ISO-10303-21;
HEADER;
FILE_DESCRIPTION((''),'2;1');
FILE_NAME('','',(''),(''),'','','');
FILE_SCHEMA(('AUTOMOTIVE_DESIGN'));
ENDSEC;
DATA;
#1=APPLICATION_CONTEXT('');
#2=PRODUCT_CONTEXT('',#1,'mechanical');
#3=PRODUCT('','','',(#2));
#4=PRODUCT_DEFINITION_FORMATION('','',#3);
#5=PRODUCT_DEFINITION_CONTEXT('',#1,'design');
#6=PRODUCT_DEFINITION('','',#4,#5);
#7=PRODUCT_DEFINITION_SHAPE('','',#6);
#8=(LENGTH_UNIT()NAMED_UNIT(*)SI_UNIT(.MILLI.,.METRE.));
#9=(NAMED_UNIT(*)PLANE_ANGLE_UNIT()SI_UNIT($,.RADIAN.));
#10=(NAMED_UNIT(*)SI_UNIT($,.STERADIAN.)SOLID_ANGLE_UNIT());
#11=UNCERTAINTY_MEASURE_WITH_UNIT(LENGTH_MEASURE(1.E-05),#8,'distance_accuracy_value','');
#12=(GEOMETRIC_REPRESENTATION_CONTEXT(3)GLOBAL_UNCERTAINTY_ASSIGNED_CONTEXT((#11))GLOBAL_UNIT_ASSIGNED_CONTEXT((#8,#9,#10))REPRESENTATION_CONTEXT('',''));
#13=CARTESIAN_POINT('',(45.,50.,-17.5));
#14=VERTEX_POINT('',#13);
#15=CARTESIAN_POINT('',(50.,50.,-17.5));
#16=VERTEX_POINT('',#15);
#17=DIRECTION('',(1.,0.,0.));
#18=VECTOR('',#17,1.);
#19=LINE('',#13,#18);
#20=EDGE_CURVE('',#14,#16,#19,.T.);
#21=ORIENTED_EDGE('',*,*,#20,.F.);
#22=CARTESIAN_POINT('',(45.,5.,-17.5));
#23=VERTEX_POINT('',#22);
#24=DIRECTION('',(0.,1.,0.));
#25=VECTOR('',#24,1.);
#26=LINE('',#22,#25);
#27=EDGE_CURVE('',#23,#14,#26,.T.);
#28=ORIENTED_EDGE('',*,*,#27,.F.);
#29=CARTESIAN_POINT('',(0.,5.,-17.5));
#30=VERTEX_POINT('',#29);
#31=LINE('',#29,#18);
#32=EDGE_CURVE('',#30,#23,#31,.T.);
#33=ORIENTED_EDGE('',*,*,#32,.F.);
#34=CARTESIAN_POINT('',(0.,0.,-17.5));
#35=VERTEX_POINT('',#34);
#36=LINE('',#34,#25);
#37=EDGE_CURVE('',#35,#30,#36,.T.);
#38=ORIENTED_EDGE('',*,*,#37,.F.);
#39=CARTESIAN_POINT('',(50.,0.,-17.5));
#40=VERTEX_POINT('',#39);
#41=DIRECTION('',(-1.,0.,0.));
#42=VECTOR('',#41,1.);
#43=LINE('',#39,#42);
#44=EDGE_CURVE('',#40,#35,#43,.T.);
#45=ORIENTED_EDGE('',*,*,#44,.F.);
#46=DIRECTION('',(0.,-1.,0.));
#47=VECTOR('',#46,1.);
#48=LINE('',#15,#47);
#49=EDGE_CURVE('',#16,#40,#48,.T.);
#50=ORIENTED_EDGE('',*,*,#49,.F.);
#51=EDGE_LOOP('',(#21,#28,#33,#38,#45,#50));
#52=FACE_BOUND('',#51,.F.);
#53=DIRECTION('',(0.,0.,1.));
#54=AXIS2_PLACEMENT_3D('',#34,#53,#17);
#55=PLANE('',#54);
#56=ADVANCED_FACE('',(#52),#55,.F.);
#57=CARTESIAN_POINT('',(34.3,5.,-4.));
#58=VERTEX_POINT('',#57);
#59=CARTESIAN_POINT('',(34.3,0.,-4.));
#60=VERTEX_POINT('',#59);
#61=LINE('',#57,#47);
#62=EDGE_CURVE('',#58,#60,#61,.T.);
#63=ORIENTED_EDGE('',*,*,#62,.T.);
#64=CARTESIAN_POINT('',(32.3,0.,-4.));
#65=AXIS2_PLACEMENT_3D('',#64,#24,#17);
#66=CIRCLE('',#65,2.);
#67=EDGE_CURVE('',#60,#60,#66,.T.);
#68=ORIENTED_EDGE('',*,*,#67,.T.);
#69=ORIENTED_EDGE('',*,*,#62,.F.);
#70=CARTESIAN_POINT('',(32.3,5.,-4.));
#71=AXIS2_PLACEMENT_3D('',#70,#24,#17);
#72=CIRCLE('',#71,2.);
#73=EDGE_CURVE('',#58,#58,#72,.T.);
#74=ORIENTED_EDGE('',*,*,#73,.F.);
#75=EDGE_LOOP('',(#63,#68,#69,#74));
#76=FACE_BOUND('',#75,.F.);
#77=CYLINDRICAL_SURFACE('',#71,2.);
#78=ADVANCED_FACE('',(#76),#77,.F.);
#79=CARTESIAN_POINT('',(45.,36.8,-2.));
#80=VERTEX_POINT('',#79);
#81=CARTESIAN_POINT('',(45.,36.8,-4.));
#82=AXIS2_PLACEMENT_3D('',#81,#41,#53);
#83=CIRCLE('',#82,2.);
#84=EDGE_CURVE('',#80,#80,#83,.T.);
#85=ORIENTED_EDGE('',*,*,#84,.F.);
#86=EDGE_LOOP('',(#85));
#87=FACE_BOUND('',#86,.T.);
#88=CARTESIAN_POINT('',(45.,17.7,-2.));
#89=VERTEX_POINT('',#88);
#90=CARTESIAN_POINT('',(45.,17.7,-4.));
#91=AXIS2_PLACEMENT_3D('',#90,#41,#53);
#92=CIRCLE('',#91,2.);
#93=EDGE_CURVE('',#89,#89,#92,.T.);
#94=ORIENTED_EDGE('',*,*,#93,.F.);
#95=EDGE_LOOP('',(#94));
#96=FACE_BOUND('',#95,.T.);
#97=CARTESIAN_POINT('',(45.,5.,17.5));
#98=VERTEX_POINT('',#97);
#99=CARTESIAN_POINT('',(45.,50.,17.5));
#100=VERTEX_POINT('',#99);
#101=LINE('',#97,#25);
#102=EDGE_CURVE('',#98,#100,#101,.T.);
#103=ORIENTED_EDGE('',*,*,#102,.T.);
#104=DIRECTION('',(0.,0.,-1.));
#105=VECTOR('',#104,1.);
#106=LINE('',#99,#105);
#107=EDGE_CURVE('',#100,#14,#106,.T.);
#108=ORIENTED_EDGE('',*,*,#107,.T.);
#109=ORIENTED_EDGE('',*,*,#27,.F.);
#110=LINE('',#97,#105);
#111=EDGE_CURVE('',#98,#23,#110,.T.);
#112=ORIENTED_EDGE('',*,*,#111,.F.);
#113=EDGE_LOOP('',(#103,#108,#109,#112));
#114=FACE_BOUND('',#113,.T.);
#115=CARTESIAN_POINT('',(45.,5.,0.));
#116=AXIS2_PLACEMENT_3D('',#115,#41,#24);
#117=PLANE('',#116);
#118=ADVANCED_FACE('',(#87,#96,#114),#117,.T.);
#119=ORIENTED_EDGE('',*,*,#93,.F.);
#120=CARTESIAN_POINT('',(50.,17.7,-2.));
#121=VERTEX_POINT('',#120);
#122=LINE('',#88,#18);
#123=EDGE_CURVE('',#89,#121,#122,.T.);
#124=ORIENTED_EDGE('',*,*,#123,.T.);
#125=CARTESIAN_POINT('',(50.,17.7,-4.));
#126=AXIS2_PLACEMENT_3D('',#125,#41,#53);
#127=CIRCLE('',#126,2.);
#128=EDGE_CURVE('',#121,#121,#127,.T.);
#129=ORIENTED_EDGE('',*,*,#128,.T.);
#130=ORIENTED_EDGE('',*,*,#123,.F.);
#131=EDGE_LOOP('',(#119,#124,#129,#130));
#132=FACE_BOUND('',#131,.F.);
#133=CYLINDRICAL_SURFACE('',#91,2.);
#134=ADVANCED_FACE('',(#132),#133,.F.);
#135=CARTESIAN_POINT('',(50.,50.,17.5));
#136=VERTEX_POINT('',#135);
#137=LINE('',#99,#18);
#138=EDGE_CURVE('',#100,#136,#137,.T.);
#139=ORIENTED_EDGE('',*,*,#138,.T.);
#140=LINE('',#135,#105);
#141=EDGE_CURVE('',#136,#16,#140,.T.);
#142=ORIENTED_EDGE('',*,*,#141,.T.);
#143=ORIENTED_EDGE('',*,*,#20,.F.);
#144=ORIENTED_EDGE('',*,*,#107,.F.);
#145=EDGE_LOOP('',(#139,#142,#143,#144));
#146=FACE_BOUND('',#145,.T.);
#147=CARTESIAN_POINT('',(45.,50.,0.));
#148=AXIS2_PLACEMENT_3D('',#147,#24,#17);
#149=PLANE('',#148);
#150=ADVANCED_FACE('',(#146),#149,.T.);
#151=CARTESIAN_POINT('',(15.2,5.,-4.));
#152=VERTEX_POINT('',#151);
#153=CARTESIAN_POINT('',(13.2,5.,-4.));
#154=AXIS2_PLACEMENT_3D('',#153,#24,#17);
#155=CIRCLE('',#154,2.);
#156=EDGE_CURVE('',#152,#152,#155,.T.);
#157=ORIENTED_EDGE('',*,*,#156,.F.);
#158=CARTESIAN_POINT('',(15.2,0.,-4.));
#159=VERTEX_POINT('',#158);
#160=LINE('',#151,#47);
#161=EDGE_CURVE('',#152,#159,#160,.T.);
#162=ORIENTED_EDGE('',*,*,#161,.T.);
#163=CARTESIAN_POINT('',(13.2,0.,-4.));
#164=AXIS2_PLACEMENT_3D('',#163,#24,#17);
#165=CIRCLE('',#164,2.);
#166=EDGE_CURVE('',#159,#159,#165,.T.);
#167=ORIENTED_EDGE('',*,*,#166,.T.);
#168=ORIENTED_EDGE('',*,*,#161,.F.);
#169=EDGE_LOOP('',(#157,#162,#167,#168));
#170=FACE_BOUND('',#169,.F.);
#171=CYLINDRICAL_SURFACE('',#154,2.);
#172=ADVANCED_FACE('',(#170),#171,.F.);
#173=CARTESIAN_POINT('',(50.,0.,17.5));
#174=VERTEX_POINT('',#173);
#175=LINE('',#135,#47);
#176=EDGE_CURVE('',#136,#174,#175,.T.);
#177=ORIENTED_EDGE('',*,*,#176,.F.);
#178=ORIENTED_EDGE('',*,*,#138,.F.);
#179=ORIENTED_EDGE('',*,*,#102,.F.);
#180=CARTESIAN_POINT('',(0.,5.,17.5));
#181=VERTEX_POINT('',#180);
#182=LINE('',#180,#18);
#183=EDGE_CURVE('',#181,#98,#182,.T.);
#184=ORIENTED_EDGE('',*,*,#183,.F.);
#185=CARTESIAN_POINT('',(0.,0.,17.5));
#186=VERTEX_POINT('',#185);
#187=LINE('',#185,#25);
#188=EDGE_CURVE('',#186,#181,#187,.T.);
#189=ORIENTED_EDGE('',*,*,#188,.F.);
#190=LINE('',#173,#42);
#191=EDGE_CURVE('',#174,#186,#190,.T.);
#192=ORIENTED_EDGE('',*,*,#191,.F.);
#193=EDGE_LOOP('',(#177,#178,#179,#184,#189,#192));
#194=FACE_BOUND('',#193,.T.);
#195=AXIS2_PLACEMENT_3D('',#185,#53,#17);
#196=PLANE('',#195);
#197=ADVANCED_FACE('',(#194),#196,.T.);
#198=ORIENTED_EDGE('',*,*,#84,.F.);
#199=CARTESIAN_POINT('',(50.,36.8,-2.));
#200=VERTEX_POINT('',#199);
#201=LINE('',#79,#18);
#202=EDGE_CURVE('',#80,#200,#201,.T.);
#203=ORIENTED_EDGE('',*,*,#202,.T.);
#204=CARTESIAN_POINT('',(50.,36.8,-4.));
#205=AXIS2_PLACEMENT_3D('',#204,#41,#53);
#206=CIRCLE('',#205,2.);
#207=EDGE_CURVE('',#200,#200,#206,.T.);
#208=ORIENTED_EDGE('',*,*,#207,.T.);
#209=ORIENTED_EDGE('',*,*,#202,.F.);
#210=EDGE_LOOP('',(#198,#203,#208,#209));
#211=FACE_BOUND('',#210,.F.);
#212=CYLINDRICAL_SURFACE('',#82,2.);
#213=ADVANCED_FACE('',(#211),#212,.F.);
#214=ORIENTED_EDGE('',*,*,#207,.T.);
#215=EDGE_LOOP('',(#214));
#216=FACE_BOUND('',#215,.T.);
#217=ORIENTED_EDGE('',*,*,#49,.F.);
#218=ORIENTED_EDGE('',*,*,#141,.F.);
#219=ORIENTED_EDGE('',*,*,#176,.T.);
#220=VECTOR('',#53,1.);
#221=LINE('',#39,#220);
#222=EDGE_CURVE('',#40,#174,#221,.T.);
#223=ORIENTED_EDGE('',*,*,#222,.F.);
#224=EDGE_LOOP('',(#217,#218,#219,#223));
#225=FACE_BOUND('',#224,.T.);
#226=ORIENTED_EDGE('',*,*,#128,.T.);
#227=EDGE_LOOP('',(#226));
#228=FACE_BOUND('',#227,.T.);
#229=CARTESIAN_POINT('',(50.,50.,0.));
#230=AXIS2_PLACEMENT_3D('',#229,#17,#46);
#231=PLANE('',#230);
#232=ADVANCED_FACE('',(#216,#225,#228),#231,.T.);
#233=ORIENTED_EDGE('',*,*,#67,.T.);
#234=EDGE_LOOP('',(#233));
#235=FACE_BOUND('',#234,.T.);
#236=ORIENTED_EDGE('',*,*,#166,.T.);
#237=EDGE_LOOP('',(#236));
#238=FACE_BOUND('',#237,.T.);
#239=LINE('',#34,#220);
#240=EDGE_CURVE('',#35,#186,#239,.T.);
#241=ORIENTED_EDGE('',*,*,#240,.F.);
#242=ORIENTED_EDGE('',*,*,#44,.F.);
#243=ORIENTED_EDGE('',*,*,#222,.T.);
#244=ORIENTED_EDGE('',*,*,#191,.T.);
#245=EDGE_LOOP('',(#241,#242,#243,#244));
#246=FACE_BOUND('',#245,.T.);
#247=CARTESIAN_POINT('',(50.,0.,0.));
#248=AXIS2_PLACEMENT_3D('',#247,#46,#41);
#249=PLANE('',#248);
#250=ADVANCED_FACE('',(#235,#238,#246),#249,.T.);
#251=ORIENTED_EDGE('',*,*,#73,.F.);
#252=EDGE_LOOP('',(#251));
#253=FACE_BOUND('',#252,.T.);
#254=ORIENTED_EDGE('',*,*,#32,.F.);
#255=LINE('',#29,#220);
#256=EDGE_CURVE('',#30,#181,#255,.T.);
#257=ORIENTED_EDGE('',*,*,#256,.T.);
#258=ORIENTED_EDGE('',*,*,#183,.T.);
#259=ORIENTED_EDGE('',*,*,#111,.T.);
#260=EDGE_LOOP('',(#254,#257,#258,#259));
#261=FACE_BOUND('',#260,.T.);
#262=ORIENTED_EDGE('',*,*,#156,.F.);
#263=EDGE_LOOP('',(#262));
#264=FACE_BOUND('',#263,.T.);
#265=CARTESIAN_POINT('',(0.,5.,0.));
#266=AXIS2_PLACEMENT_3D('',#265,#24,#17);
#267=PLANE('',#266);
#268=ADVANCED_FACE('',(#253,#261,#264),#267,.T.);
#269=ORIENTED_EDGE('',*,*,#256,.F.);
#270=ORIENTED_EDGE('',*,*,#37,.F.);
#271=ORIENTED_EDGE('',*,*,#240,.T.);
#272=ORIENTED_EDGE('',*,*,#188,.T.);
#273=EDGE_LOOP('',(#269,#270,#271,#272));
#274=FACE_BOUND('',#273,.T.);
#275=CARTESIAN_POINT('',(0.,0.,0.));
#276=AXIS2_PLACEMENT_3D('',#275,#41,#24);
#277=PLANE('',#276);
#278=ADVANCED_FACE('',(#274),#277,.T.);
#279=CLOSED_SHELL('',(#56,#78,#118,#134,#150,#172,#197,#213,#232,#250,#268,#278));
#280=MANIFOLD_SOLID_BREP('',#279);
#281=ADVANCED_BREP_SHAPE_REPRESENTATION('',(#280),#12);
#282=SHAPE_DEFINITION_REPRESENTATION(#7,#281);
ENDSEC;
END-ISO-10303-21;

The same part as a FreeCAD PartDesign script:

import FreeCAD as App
import Part
import Sketcher

V = App.Vector
Q = App.Units.Quantity


def add_polygon(sketch, points):
    """Adds a closed chain of lines whose ends are joined by coincident constraints."""
    first, n = sketch.GeometryCount, len(points)
    for a, b in zip(points, points[1:] + points[:1]):
        sketch.addGeometry(Part.LineSegment(App.Vector(*a, 0), App.Vector(*b, 0)), False)
    for i in range(n):
        sketch.addConstraint(Sketcher.Constraint("Coincident", first + i, 2, first + (i + 1) % n, 1))

doc = App.newDocument("Part")
params = doc.addObject("Spreadsheet::Sheet", "Params")
for row, (alias, value) in enumerate([
    ("sketch1_width", "50 mm"),
    ("sketch1_width2", "5 mm"),
    ("pad1_length", "35 mm"),
    ("sketch2_diameter", "4 mm"),
    ("sketch3_diameter", "4 mm"),
], start=1):
    params.set(f"A{row}", alias)
    params.set(f"B{row}", "=" + value)
    params.setAlias(f"B{row}", alias)

body = doc.addObject("PartDesign::Body", "Body")

sketch1 = doc.addObject("Sketcher::SketchObject", "Sketch")
body.addObject(sketch1)
sketch1.AttachmentSupport = (doc.XY_Plane, [""])
sketch1.MapMode = "FlatFace"
add_polygon(sketch1, [(45, 5), (0, 5), (0, 0), (50, 0), (50, 50), (45, 50)])
sketch1.addConstraint([
    Sketcher.Constraint("Horizontal", 0),
    Sketcher.Constraint("Vertical", 1),
    Sketcher.Constraint("Horizontal", 2),
    Sketcher.Constraint("Vertical", 3),
    Sketcher.Constraint("Horizontal", 4),
    Sketcher.Constraint("Vertical", 5),
    Sketcher.Constraint("Coincident", 1, 2, -1, 1),
    Sketcher.Constraint("Equal", 4, 1),
    Sketcher.Constraint("Equal", 2, 3),
    Sketcher.Constraint("DistanceX", 2, 1, 2, 2, Q("50 mm")),
    Sketcher.Constraint("DistanceX", 4, 2, 4, 1, Q("5 mm")),
])
sketch1.setExpression("Constraints[15]", "Params.sketch1_width")
sketch1.setExpression("Constraints[16]", "Params.sketch1_width2")
pad1 = doc.addObject("PartDesign::Pad", "Pad")
body.addObject(pad1)
pad1.Profile = sketch1
pad1.setExpression("Length", "Params.pad1_length")
pad1.Midplane = True

sketch2 = doc.addObject("Sketcher::SketchObject", "Sketch001")
body.addObject(sketch2)
sketch2.AttachmentSupport = (doc.XZ_Plane, [""])
sketch2.MapMode = "FlatFace"
sketch2.AttachmentOffset = App.Placement(V(0, 0, -5), App.Rotation())
sketch2.addGeometry([
    Part.Circle(V(13.2, -4, 0), V(0, 0, 1), 2),
    Part.Circle(V(32.3, -4, 0), V(0, 0, 1), 2),
], False)
sketch2.addConstraint([
    Sketcher.Constraint("Equal", 0, 1),
    Sketcher.Constraint("Horizontal", 0, 3, 1, 3),
    Sketcher.Constraint("Diameter", 0, Q("4 mm")),
    Sketcher.Constraint("DistanceY", 0, 3, -1, 1, Q("4 mm")),
    Sketcher.Constraint("DistanceX", -1, 1, 0, 3, Q("13.2 mm")),
    Sketcher.Constraint("DistanceX", 0, 3, 1, 3, Q("19.1 mm")),
])
sketch2.setExpression("Constraints[2]", "Params.sketch2_diameter")
pocket1 = doc.addObject("PartDesign::Pocket", "Pocket")
body.addObject(pocket1)
pocket1.Profile = sketch2
pocket1.Type = "ThroughAll"
pocket1.Reversed = True

sketch3 = doc.addObject("Sketcher::SketchObject", "Sketch002")
body.addObject(sketch3)
sketch3.AttachmentSupport = (doc.YZ_Plane, [""])
sketch3.MapMode = "FlatFace"
sketch3.AttachmentOffset = App.Placement(V(0, 0, 45), App.Rotation())
sketch3.addGeometry([
    Part.Circle(V(36.8, -4, 0), V(0, 0, 1), 2),
    Part.Circle(V(17.7, -4, 0), V(0, 0, 1), 2),
], False)
sketch3.addConstraint([
    Sketcher.Constraint("Equal", 0, 1),
    Sketcher.Constraint("Horizontal", 0, 3, 1, 3),
    Sketcher.Constraint("Diameter", 0, Q("4 mm")),
    Sketcher.Constraint("DistanceY", 0, 3, -1, 1, Q("4 mm")),
    Sketcher.Constraint("DistanceX", 1, 3, 0, 3, Q("19.1 mm")),
    Sketcher.Constraint("DistanceX", -1, 1, 0, 3, Q("36.8 mm")),
])
sketch3.setExpression("Constraints[2]", "Params.sketch3_diameter")
pocket2 = doc.addObject("PartDesign::Pocket", "Pocket001")
body.addObject(pocket2)
pocket2.Profile = sketch3
pocket2.Type = "ThroughAll"
pocket2.Reversed = True

doc.recompute()
